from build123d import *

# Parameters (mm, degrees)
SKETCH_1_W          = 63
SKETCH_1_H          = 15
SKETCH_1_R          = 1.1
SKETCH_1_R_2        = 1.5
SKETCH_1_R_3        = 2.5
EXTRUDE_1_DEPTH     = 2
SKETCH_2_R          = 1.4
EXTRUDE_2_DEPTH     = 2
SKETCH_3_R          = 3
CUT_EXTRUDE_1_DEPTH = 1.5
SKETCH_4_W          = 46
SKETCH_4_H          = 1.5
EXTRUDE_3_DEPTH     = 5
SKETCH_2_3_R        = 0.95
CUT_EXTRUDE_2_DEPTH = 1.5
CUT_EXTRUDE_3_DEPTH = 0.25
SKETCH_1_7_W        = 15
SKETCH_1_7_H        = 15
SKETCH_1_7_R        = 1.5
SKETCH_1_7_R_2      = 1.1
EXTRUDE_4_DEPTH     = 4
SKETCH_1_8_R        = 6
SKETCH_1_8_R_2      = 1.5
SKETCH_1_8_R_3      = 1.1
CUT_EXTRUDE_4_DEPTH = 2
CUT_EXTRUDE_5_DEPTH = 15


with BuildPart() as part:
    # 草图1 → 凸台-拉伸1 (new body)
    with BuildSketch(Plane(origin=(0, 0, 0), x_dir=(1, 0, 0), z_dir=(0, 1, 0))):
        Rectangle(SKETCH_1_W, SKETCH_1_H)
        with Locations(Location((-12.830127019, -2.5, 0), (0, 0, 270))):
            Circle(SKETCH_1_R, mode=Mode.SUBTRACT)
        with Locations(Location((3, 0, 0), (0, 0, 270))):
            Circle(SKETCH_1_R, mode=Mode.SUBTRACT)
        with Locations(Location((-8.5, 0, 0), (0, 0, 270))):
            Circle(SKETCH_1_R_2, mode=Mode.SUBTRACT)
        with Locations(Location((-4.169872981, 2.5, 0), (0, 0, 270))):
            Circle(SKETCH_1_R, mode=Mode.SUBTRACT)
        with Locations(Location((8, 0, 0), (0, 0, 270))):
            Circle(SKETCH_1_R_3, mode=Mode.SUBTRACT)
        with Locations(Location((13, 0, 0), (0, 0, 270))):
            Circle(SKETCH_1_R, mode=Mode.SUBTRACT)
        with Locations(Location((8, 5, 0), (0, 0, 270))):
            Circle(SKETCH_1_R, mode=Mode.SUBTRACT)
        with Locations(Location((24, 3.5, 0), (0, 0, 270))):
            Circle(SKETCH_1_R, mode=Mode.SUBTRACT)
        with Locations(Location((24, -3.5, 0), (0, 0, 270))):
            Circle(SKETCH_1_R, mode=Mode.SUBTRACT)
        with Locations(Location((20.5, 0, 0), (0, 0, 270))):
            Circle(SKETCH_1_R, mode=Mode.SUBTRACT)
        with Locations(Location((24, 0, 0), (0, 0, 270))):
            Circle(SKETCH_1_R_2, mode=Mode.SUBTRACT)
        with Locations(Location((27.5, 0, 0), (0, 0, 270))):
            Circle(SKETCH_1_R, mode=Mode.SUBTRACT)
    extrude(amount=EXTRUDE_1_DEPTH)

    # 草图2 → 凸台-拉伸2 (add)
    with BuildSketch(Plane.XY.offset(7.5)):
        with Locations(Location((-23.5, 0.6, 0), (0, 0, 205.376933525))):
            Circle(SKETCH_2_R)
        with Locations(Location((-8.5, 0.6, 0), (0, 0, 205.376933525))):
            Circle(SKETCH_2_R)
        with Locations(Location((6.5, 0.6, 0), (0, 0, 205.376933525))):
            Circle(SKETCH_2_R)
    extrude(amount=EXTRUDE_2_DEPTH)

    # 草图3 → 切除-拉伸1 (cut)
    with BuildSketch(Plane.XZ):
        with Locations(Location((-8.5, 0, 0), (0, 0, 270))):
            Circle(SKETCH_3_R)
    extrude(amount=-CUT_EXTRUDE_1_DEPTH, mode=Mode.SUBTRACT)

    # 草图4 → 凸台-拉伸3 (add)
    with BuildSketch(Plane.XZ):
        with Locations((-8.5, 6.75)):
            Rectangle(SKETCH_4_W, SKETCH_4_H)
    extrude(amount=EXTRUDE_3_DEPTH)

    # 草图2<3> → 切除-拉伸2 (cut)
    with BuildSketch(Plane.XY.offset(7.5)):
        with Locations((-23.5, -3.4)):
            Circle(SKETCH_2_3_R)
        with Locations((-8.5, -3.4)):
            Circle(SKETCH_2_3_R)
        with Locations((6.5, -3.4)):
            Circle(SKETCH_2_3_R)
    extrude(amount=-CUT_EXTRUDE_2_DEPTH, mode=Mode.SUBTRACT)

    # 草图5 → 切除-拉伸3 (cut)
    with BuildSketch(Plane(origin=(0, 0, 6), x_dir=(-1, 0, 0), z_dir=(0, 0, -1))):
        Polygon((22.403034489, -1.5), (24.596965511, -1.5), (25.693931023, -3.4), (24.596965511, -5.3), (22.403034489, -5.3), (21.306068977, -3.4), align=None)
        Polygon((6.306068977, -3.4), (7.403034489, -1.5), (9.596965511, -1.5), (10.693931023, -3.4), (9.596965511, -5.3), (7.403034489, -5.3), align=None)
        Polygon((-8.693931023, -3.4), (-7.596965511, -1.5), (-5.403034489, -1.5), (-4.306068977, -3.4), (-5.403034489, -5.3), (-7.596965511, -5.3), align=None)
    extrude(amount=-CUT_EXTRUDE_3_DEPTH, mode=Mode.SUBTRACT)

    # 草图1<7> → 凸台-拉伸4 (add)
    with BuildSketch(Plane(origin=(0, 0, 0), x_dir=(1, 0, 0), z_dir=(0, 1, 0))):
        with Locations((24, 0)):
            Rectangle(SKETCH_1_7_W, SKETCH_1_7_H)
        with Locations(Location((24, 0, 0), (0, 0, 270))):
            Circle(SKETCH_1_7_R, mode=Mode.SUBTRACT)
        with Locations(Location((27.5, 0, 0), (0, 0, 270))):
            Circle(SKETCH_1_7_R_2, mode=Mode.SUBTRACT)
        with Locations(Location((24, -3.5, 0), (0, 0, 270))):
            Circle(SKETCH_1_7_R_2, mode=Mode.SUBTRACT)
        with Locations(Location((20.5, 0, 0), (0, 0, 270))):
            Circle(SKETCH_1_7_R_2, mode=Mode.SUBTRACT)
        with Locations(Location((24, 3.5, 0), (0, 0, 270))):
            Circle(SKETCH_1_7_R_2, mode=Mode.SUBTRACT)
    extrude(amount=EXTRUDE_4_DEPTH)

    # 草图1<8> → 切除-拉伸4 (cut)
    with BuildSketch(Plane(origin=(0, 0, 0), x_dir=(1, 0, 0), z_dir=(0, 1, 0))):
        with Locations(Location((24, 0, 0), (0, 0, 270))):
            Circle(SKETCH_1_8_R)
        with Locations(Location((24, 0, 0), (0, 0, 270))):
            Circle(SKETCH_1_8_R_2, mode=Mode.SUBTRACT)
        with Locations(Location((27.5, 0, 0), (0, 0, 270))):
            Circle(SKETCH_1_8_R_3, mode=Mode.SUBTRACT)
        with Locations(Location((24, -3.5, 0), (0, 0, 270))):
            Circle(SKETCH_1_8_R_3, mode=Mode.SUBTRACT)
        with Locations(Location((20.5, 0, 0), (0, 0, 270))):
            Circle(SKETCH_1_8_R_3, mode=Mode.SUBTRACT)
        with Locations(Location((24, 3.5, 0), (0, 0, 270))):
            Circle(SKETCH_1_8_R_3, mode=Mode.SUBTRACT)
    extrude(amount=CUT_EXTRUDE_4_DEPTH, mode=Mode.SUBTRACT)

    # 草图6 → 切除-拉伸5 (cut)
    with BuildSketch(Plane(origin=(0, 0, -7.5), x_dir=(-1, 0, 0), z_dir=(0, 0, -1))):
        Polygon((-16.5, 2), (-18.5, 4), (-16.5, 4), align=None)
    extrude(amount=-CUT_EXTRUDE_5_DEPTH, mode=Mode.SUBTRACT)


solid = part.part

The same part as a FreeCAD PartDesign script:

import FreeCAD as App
import Part
import Sketcher
Q = App.Units.Quantity

doc = App.newDocument("Part")
body = doc.addObject("PartDesign::Body", "Body")

# Sketch on XZ plane
sketch1 = body.newObject("Sketcher::SketchObject", "Sketch")
sketch1.AttachmentSupport = (doc.getObject("XZ_Plane"), [""])
sketch1.MapMode = "FlatFace"
sketch1.addGeometry(Part.LineSegment(App.Vector(-31.5, -7.5, 0), App.Vector(-31.5, 7.5, 0)), False)
sketch1.addGeometry(Part.LineSegment(App.Vector(-31.5, 7.5, 0), App.Vector(31.5, 7.5, 0)), False)
sketch1.addGeometry(Part.LineSegment(App.Vector(31.5, 7.5, 0), App.Vector(31.5, -7.5, 0)), False)
sketch1.addGeometry(Part.LineSegment(App.Vector(31.5, -7.5, 0), App.Vector(-31.5, -7.5, 0)), False)
sketch1.addGeometry(Part.Circle(App.Vector(-12.8, 2.5, 0), App.Vector(0, 0, 1), 1.1), False)
sketch1.addGeometry(Part.Circle(App.Vector(-8.5, 0, 0), App.Vector(0, 0, 1), 1.5), False)
sketch1.addGeometry(Part.Circle(App.Vector(3, 0, 0), App.Vector(0, 0, 1), 1.1), False)
sketch1.addGeometry(Part.Circle(App.Vector(24, 3.5, 0), App.Vector(0, 0, 1), 1.1), False)
sketch1.addGeometry(Part.Circle(App.Vector(8, 0, 0), App.Vector(0, 0, 1), 2.5), False)
sketch1.addGeometry(Part.Circle(App.Vector(13, 0, 0), App.Vector(0, 0, 1), 1.1), False)
sketch1.addGeometry(Part.Circle(App.Vector(20.5, 0, 0), App.Vector(0, 0, 1), 1.1), False)
sketch1.addGeometry(Part.Circle(App.Vector(24, 0, 0), App.Vector(0, 0, 1), 1.5), False)
sketch1.addGeometry(Part.Circle(App.Vector(27.5, 0, 0), App.Vector(0, 0, 1), 1.1), False)
sketch1.addGeometry(Part.Circle(App.Vector(-4.2, -2.5, 0), App.Vector(0, 0, 1), 1.1), False)
sketch1.addGeometry(Part.Circle(App.Vector(8, -5, 0), App.Vector(0, 0, 1), 1.1), False)
sketch1.addGeometry(Part.Circle(App.Vector(24, -3.5, 0), App.Vector(0, 0, 1), 1.1), False)
sketch1.addConstraint(Sketcher.Constraint("Coincident", 0, 2, 1, 1))
sketch1.addConstraint(Sketcher.Constraint("Coincident", 1, 2, 2, 1))
sketch1.addConstraint(Sketcher.Constraint("Coincident", 2, 2, 3, 1))
sketch1.addConstraint(Sketcher.Constraint("Coincident", 3, 2, 0, 1))
sketch1.addConstraint(Sketcher.Constraint("Vertical", 0))
sketch1.addConstraint(Sketcher.Constraint("Horizontal", 1))
sketch1.addConstraint(Sketcher.Constraint("Vertical", 2))
sketch1.addConstraint(Sketcher.Constraint("Horizontal", 3))
sketch1.addConstraint(Sketcher.Constraint("Equal", 4, 6))
sketch1.addConstraint(Sketcher.Constraint("Equal", 6, 7))
sketch1.addConstraint(Sketcher.Constraint("Equal", 7, 9))
sketch1.addConstraint(Sketcher.Constraint("Equal", 9, 10))
sketch1.addConstraint(Sketcher.Constraint("Equal", 5, 11))
sketch1.addConstraint(Sketcher.Constraint("Equal", 10, 12))
sketch1.addConstraint(Sketcher.Constraint("Equal", 12, 13))
sketch1.addConstraint(Sketcher.Constraint("Equal", 13, 14))
sketch1.addConstraint(Sketcher.Constraint("Equal", 14, 15))
sketch1.addConstraint(Sketcher.Constraint("Symmetric", 0, 2, 2, 2, -1, 1))
sketch1.addConstraint(Sketcher.Constraint("Symmetric", 7, 3, 15, 3, -1))
sketch1.addConstraint(Sketcher.Constraint("PointOnObject", 5, 3, -1))
sketch1.addConstraint(Sketcher.Constraint("PointOnObject", 6, 3, -1))
sketch1.addConstraint(Sketcher.Constraint("PointOnObject", 8, 3, -1))
sketch1.addConstraint(Sketcher.Constraint("PointOnObject", 9, 3, -1))
sketch1.addConstraint(Sketcher.Constraint("PointOnObject", 10, 3, -1))
sketch1.addConstraint(Sketcher.Constraint("PointOnObject", 11, 3, -1))
sketch1.addConstraint(Sketcher.Constraint("PointOnObject", 12, 3, -1))
sketch1.addConstraint(Sketcher.Constraint("Vertical", 7, 3, 11, 3))
sketch1.addConstraint(Sketcher.Constraint("Vertical", 8, 3, 14, 3))
sketch1.addConstraint(Sketcher.Constraint("Diameter", 5, Q("3 mm")))
sketch1.addConstraint(Sketcher.Constraint("Diameter", 8, Q("5 mm")))
sketch1.addConstraint(Sketcher.Constraint("Diameter", 4, Q("2.2 mm")))
sketch1.addConstraint(Sketcher.Constraint("DistanceX", 1, 1, 1, 2, Q("63 mm")))
sketch1.addConstraint(Sketcher.Constraint("DistanceY", 0, 1, 0, 2, Q("15 mm")))
sketch1.addConstraint(Sketcher.Constraint("DistanceX", -1, 1, 6, 3, Q("3 mm")))
sketch1.addConstraint(Sketcher.Constraint("DistanceX", -1, 1, 7, 3, Q("24 mm")))
sketch1.addConstraint(Sketcher.Constraint("DistanceX", -1, 1, 8, 3, Q("8 mm")))
sketch1.addConstraint(Sketcher.Constraint("DistanceX", -1, 1, 9, 3, Q("13 mm")))
sketch1.addConstraint(Sketcher.Constraint("DistanceY", 14, 3, -1, 1, Q("5 mm")))
sketch1.addConstraint(Sketcher.Constraint("DistanceY", 4, 3, 7, 3, Q("1 mm")))
sketch1.addConstraint(Sketcher.Constraint("DistanceX", 5, 3, 10, 3, Q("29 mm")))
sketch1.addConstraint(Sketcher.Constraint("DistanceX", 10, 3, 12, 3, Q("7 mm")))
sketch1.addConstraint(Sketcher.Constraint("DistanceY", 13, 3, 4, 3, Q("5 mm")))
sketch1.addConstraint(Sketcher.Constraint("DistanceY", 15, 3, 7, 3, Q("7 mm")))
sketch1.addConstraint(Sketcher.Constraint("DistanceX", 0, 2, 5, 3, Q("23 mm")))
sketch1.addConstraint(Sketcher.Constraint("DistanceX", 4, 3, -1, 1, Q("12.830127 mm")))
sketch1.addConstraint(Sketcher.Constraint("DistanceX", 13, 3, -1, 1, Q("4.169873 mm")))
pad1 = body.newObject("PartDesign::Pad", "Pad")
pad1.Profile = sketch1
pad1.Length = 2
pad1.Reversed = True

# Sketch on XY plane
sketch2 = body.newObject("Sketcher::SketchObject", "Sketch001")
sketch2.AttachmentSupport = (doc.getObject("XY_Plane"), [""])
sketch2.MapMode = "FlatFace"
sketch2.AttachmentOffset = App.Placement(App.Vector(0, 0, 7.5), App.Rotation())
sketch2.addGeometry(Part.Circle(App.Vector(-23.5, 0.6, 0), App.Vector(0, 0, 1), 1.4), False)
sketch2.addGeometry(Part.Circle(App.Vector(-8.5, 0.6, 0), App.Vector(0, 0, 1), 1.4), False)
sketch2.addGeometry(Part.Circle(App.Vector(6.5, 0.6, 0), App.Vector(0, 0, 1), 1.4), False)
sketch2.addConstraint(Sketcher.Constraint("Equal", 0, 1))
sketch2.addConstraint(Sketcher.Constraint("Equal", 1, 2))
sketch2.addConstraint(Sketcher.Constraint("Horizontal", 0, 3, 1, 3))
sketch2.addConstraint(Sketcher.Constraint("Horizontal", 1, 3, 2, 3))
sketch2.addConstraint(Sketcher.Constraint("Diameter", 0, Q("2.8 mm")))
sketch2.addConstraint(Sketcher.Constraint("DistanceX", 0, 3, 1, 3, Q("15 mm")))
sketch2.addConstraint(Sketcher.Constraint("DistanceX", 1, 3, 2, 3, Q("15 mm")))
sketch2.addConstraint(Sketcher.Constraint("DistanceX", 0, 3, -1, 1, Q("23.5 mm")))
sketch2.addConstraint(Sketcher.Constraint("DistanceY", -1, 1, 0, 3, Q("0.6 mm")))
pad2 = body.newObject("PartDesign::Pad", "Pad001")
pad2.Profile = sketch2
pad2.Length = 2

# Sketch on XZ plane
sketch3 = body.newObject("Sketcher::SketchObject", "Sketch002")
sketch3.AttachmentSupport = (doc.getObject("XZ_Plane"), [""])
sketch3.MapMode = "FlatFace"
sketch3.addGeometry(Part.Circle(App.Vector(-8.5, 0, 0), App.Vector(0, 0, 1), 3), False)
sketch3.addConstraint(Sketcher.Constraint("PointOnObject", 0, 3, -1))
sketch3.addConstraint(Sketcher.Constraint("Diameter", 0, Q("6 mm")))
sketch3.addConstraint(Sketcher.Constraint("DistanceX", 0, 3, -1, 1, Q("8.5 mm")))
pocket1 = body.newObject("PartDesign::Pocket", "Pocket")
pocket1.Profile = sketch3
pocket1.Length = 1.5

# Sketch on XZ plane
sketch4 = body.newObject("Sketcher::SketchObject", "Sketch003")
sketch4.AttachmentSupport = (doc.getObject("XZ_Plane"), [""])
sketch4.MapMode = "FlatFace"
sketch4.addGeometry(Part.LineSegment(App.Vector(-31.5, 7.5, 0), App.Vector(-31.5, 6, 0)), False)
sketch4.addGeometry(Part.LineSegment(App.Vector(-31.5, 6, 0), App.Vector(14.5, 6, 0)), False)
sketch4.addGeometry(Part.LineSegment(App.Vector(14.5, 6, 0), App.Vector(14.5, 7.5, 0)), False)
sketch4.addGeometry(Part.LineSegment(App.Vector(14.5, 7.5, 0), App.Vector(-31.5, 7.5, 0)), False)
sketch4.addConstraint(Sketcher.Constraint("Coincident", 0, 2, 1, 1))
sketch4.addConstraint(Sketcher.Constraint("Coincident", 1, 2, 2, 1))
sketch4.addConstraint(Sketcher.Constraint("Coincident", 2, 2, 3, 1))
sketch4.addConstraint(Sketcher.Constraint("Coincident", 3, 2, 0, 1))
sketch4.addConstraint(Sketcher.Constraint("Vertical", 0))
sketch4.addConstraint(Sketcher.Constraint("Horizontal", 1))
sketch4.addConstraint(Sketcher.Constraint("Vertical", 2))
sketch4.addConstraint(Sketcher.Constraint("Horizontal", 3))
sketch4.addConstraint(Sketcher.Constraint("DistanceX", 1, 1, 1, 2, Q("46 mm")))
sketch4.addConstraint(Sketcher.Constraint("DistanceY", 0, 2, 0, 1, Q("1.5 mm")))
sketch4.addConstraint(Sketcher.Constraint("DistanceY", -1, 1, 0, 2, Q("6 mm")))
sketch4.addConstraint(Sketcher.Constraint("DistanceX", 0, 2, -1, 1, Q("31.5 mm")))
pad3 = body.newObject("PartDesign::Pad", "Pad002")
pad3.Profile = sketch4
pad3.Length = 5

# Sketch on XY plane
sketch5 = body.newObject("Sketcher::SketchObject", "Sketch004")
sketch5.AttachmentSupport = (doc.getObject("XY_Plane"), [""])
sketch5.MapMode = "FlatFace"
sketch5.AttachmentOffset = App.Placement(App.Vector(0, 0, 7.5), App.Rotation())
sketch5.addGeometry(Part.Circle(App.Vector(-23.5, -3.4, 0), App.Vector(0, 0, 1), 0.9), False)
sketch5.addGeometry(Part.Circle(App.Vector(-8.5, -3.4, 0), App.Vector(0, 0, 1), 0.9), False)
sketch5.addGeometry(Part.Circle(App.Vector(6.5, -3.4, 0), App.Vector(0, 0, 1), 0.9), False)
sketch5.addConstraint(Sketcher.Constraint("Equal", 0, 1))
sketch5.addConstraint(Sketcher.Constraint("Equal", 1, 2))
sketch5.addConstraint(Sketcher.Constraint("Horizontal", 0, 3, 1, 3))
sketch5.addConstraint(Sketcher.Constraint("Horizontal", 1, 3, 2, 3))
sketch5.addConstraint(Sketcher.Constraint("Diameter", 0, Q("1.9 mm")))
sketch5.addConstraint(Sketcher.Constraint("DistanceX", 0, 3, 1, 3, Q("15 mm")))
sketch5.addConstraint(Sketcher.Constraint("DistanceX", 1, 3, 2, 3, Q("15 mm")))
sketch5.addConstraint(Sketcher.Constraint("DistanceX", 0, 3, -1, 1, Q("23.5 mm")))
sketch5.addConstraint(Sketcher.Constraint("DistanceY", 0, 3, -1, 1, Q("3.4 mm")))
pocket2 = body.newObject("PartDesign::Pocket", "Pocket001")
pocket2.Profile = sketch5
pocket2.Length = 1.5

# Sketch on XY plane
sketch6 = body.newObject("Sketcher::SketchObject", "Sketch005")
sketch6.AttachmentSupport = (doc.getObject("XY_Plane"), [""])
sketch6.MapMode = "FlatFace"
sketch6.AttachmentOffset = App.Placement(App.Vector(0, 0, 6), App.Rotation())
sketch6.addGeometry(Part.LineSegment(App.Vector(-24.6, -1.5, 0), App.Vector(-22.4, -1.5, 0)), False)
sketch6.addGeometry(Part.LineSegment(App.Vector(-22.4, -1.5, 0), App.Vector(-21.3, -3.4, 0)), False)
sketch6.addGeometry(Part.LineSegment(App.Vector(-21.3, -3.4, 0), App.Vector(-22.4, -5.3, 0)), False)
sketch6.addGeometry(Part.LineSegment(App.Vector(-22.4, -5.3, 0), App.Vector(-24.6, -5.3, 0)), False)
sketch6.addGeometry(Part.LineSegment(App.Vector(-24.6, -5.3, 0), App.Vector(-25.7, -3.4, 0)), False)
sketch6.addGeometry(Part.LineSegment(App.Vector(-25.7, -3.4, 0), App.Vector(-24.6, -1.5, 0)), False)
sketch6.addGeometry(Part.LineSegment(App.Vector(-7.4, -1.5, 0), App.Vector(-6.3, -3.4, 0)), False)
sketch6.addGeometry(Part.LineSegment(App.Vector(-6.3, -3.4, 0), App.Vector(-7.4, -5.3, 0)), False)
sketch6.addGeometry(Part.LineSegment(App.Vector(-7.4, -5.3, 0), App.Vector(-9.6, -5.3, 0)), False)
sketch6.addGeometry(Part.LineSegment(App.Vector(-9.6, -5.3, 0), App.Vector(-10.7, -3.4, 0)), False)
sketch6.addGeometry(Part.LineSegment(App.Vector(-10.7, -3.4, 0), App.Vector(-9.6, -1.5, 0)), False)
sketch6.addGeometry(Part.LineSegment(App.Vector(-9.6, -1.5, 0), App.Vector(-7.4, -1.5, 0)), False)
sketch6.addGeometry(Part.LineSegment(App.Vector(7.6, -1.5, 0), App.Vector(8.7, -3.4, 0)), False)
sketch6.addGeometry(Part.LineSegment(App.Vector(8.7, -3.4, 0), App.Vector(7.6, -5.3, 0)), False)
sketch6.addGeometry(Part.LineSegment(App.Vector(7.6, -5.3, 0), App.Vector(5.4, -5.3, 0)), False)
sketch6.addGeometry(Part.LineSegment(App.Vector(5.4, -5.3, 0), App.Vector(4.3, -3.4, 0)), False)
sketch6.addGeometry(Part.LineSegment(App.Vector(4.3, -3.4, 0), App.Vector(5.4, -1.5, 0)), False)
sketch6.addGeometry(Part.LineSegment(App.Vector(5.4, -1.5, 0), App.Vector(7.6, -1.5, 0)), False)
sketch6.addConstraint(Sketcher.Constraint("Coincident", 0, 2, 1, 1))
sketch6.addConstraint(Sketcher.Constraint("Coincident", 1, 2, 2, 1))
sketch6.addConstraint(Sketcher.Constraint("Coincident", 2, 2, 3, 1))
sketch6.addConstraint(Sketcher.Constraint("Coincident", 3, 2, 4, 1))
sketch6.addConstraint(Sketcher.Constraint("Coincident", 4, 2, 5, 1))
sketch6.addConstraint(Sketcher.Constraint("Coincident", 5, 2, 0, 1))
sketch6.addConstraint(Sketcher.Constraint("Coincident", 6, 2, 7, 1))
sketch6.addConstraint(Sketcher.Constraint("Coincident", 7, 2, 8, 1))
sketch6.addConstraint(Sketcher.Constraint("Coincident", 8, 2, 9, 1))
sketch6.addConstraint(Sketcher.Constraint("Coincident", 9, 2, 10, 1))
sketch6.addConstraint(Sketcher.Constraint("Coincident", 10, 2, 11, 1))
sketch6.addConstraint(Sketcher.Constraint("Coincident", 11, 2, 6, 1))
sketch6.addConstraint(Sketcher.Constraint("Coincident", 12, 2, 13, 1))
sketch6.addConstraint(Sketcher.Constraint("Coincident", 13, 2, 14, 1))
sketch6.addConstraint(Sketcher.Constraint("Coincident", 14, 2, 15, 1))
sketch6.addConstraint(Sketcher.Constraint("Coincident", 15, 2, 16, 1))
sketch6.addConstraint(Sketcher.Constraint("Coincident", 16, 2, 17, 1))
sketch6.addConstraint(Sketcher.Constraint("Coincident", 17, 2, 12, 1))
sketch6.addConstraint(Sketcher.Constraint("Horizontal", 0))
sketch6.addConstraint(Sketcher.Constraint("Horizontal", 3))
sketch6.addConstraint(Sketcher.Constraint("Horizontal", 8))
sketch6.addConstraint(Sketcher.Constraint("Horizontal", 11))
sketch6.addConstraint(Sketcher.Constraint("Horizontal", 14))
sketch6.addConstraint(Sketcher.Constraint("Horizontal", 17))
sketch6.addConstraint(Sketcher.Constraint("Parallel", 1, 4))
sketch6.addConstraint(Sketcher.Constraint("Parallel", 2, 5))
sketch6.addConstraint(Sketcher.Constraint("Parallel", 4, 6))
sketch6.addConstraint(Sketcher.Constraint("Parallel", 5, 7))
sketch6.addConstraint(Sketcher.Constraint("Parallel", 6, 9))
sketch6.addConstraint(Sketcher.Constraint("Parallel", 7, 10))
sketch6.addConstraint(Sketcher.Constraint("Parallel", 9, 12))
sketch6.addConstraint(Sketcher.Constraint("Parallel", 10, 13))
sketch6.addConstraint(Sketcher.Constraint("Parallel", 12, 15))
sketch6.addConstraint(Sketcher.Constraint("Parallel", 13, 16))
sketch6.addConstraint(Sketcher.Constraint("Horizontal", 1, 2, 4, 2))
sketch6.addConstraint(Sketcher.Constraint("Horizontal", 4, 2, 6, 2))
sketch6.addConstraint(Sketcher.Constraint("Horizontal", 3, 2, 7, 2))
sketch6.addConstraint(Sketcher.Constraint("Horizontal", 6, 2, 9, 2))
sketch6.addConstraint(Sketcher.Constraint("Horizontal", 5, 2, 10, 2))
sketch6.addConstraint(Sketcher.Constraint("Horizontal", 9, 2, 12, 2))
sketch6.addConstraint(Sketcher.Constraint("Horizontal", 8, 2, 13, 2))
sketch6.addConstraint(Sketcher.Constraint("Horizontal", 12, 2, 15, 2))
sketch6.addConstraint(Sketcher.Constraint("Horizontal", 11, 2, 16, 2))
sketch6.addConstraint(Sketcher.Constraint("Vertical", 0, 2, 2, 2))
sketch6.addConstraint(Sketcher.Constraint("Vertical", 3, 2, 5, 2))
sketch6.addConstraint(Sketcher.Constraint("Equal", 3, 8))
sketch6.addConstraint(Sketcher.Constraint("Equal", 11, 14))
sketch6.addConstraint(Sketcher.Constraint("Angle", 1, Q("-60 deg")))
sketch6.addConstraint(Sketcher.Constraint("DistanceX", 1, 2, 6, 2, Q("15 mm")))
sketch6.addConstraint(Sketcher.Constraint("DistanceX", 6, 2, 12, 2, Q("15 mm")))
sketch6.addConstraint(Sketcher.Constraint("DistanceY", 0, 2, -1, 1, Q("1.5 mm")))
sketch6.addConstraint(Sketcher.Constraint("DistanceY", 1, 2, -1, 1, Q("3.4 mm")))
sketch6.addConstraint(Sketcher.Constraint("DistanceX", 0, 1, 0, 2, Q("2.193931 mm")))
sketch6.addConstraint(Sketcher.Constraint("DistanceX", 1, 2, -1, 1, Q("21.306069 mm")))
pocket3 = body.newObject("PartDesign::Pocket", "Pocket002")
pocket3.Profile = sketch6
pocket3.Length = 0.25
pocket3.Reversed = True

# Sketch on XZ plane
sketch7 = body.newObject("Sketcher::SketchObject", "Sketch006")
sketch7.AttachmentSupport = (doc.getObject("XZ_Plane"), [""])
sketch7.MapMode = "FlatFace"
sketch7.addGeometry(Part.LineSegment(App.Vector(16.5, -7.5, 0), App.Vector(16.5, 7.5, 0)), False)
sketch7.addGeometry(Part.LineSegment(App.Vector(16.5, 7.5, 0), App.Vector(31.5, 7.5, 0)), False)
sketch7.addGeometry(Part.LineSegment(App.Vector(31.5, 7.5, 0), App.Vector(31.5, -7.5, 0)), False)
sketch7.addGeometry(Part.LineSegment(App.Vector(31.5, -7.5, 0), App.Vector(16.5, -7.5, 0)), False)
sketch7.addGeometry(Part.Circle(App.Vector(24, 3.5, 0), App.Vector(0, 0, 1), 1.1), False)
sketch7.addGeometry(Part.Circle(App.Vector(20.5, 0, 0), App.Vector(0, 0, 1), 1.1), False)
sketch7.addGeometry(Part.Circle(App.Vector(24, 0, 0), App.Vector(0, 0, 1), 1.5), False)
sketch7.addGeometry(Part.Circle(App.Vector(27.5, 0, 0), App.Vector(0, 0, 1), 1.1), False)
sketch7.addGeometry(Part.Circle(App.Vector(24, -3.5, 0), App.Vector(0, 0, 1), 1.1), False)
sketch7.addConstraint(Sketcher.Constraint("Coincident", 0, 2, 1, 1))
sketch7.addConstraint(Sketcher.Constraint("Coincident", 1, 2, 2, 1))
sketch7.addConstraint(Sketcher.Constraint("Coincident", 2, 2, 3, 1))
sketch7.addConstraint(Sketcher.Constraint("Coincident", 3, 2, 0, 1))
sketch7.addConstraint(Sketcher.Constraint("Vertical", 0))
sketch7.addConstraint(Sketcher.Constraint("Horizontal", 1))
sketch7.addConstraint(Sketcher.Constraint("Vertical", 2))
sketch7.addConstraint(Sketcher.Constraint("Horizontal", 3))
sketch7.addConstraint(Sketcher.Constraint("Equal", 4, 5))
sketch7.addConstraint(Sketcher.Constraint("Equal", 5, 7))
sketch7.addConstraint(Sketcher.Constraint("Equal", 7, 8))
sketch7.addConstraint(Sketcher.Constraint("Symmetric", 4, 3, 8, 3, -1))
sketch7.addConstraint(Sketcher.Constraint("PointOnObject", 5, 3, -1))
sketch7.addConstraint(Sketcher.Constraint("PointOnObject", 6, 3, -1))
sketch7.addConstraint(Sketcher.Constraint("PointOnObject", 7, 3, -1))
sketch7.addConstraint(Sketcher.Constraint("Vertical", 4, 3, 6, 3))
sketch7.addConstraint(Sketcher.Constraint("Equal", 3, 0))
sketch7.addConstraint(Sketcher.Constraint("Diameter", 6, Q("3 mm")))
sketch7.addConstraint(Sketcher.Constraint("Diameter", 4, Q("2.2 mm")))
sketch7.addConstraint(Sketcher.Constraint("DistanceX", 1, 1, 1, 2, Q("15 mm")))
sketch7.addConstraint(Sketcher.Constraint("DistanceX", -1, 1, 4, 3, Q("24 mm")))
sketch7.addConstraint(Sketcher.Constraint("DistanceX", 5, 3, 7, 3, Q("7 mm")))
sketch7.addConstraint(Sketcher.Constraint("DistanceY", 8, 3, 4, 3, Q("7 mm")))
sketch7.addConstraint(Sketcher.Constraint("DistanceY", 4, 3, 0, 2, Q("4 mm")))
sketch7.addConstraint(Sketcher.Constraint("DistanceX", 0, 2, 5, 3, Q("4 mm")))
sketch7.addConstraint(Sketcher.Constraint("DistanceX", -1, 1, 5, 3, Q("20.5 mm")))
pad4 = body.newObject("PartDesign::Pad", "Pad003")
pad4.Profile = sketch7
pad4.Length = 4
pad4.Reversed = True

# Sketch on XZ plane
sketch8 = body.newObject("Sketcher::SketchObject", "Sketch007")
sketch8.AttachmentSupport = (doc.getObject("XZ_Plane"), [""])
sketch8.MapMode = "FlatFace"
sketch8.addGeometry(Part.Circle(App.Vector(24, 0, 0), App.Vector(0, 0, 1), 6), False)
sketch8.addGeometry(Part.Circle(App.Vector(20.5, 0, 0), App.Vector(0, 0, 1), 1.1), False)
sketch8.addGeometry(Part.Circle(App.Vector(24, -3.5, 0), App.Vector(0, 0, 1), 1.1), False)
sketch8.addGeometry(Part.Circle(App.Vector(24, 0, 0), App.Vector(0, 0, 1), 1.5), False)
sketch8.addGeometry(Part.Circle(App.Vector(24, 3.5, 0), App.Vector(0, 0, 1), 1.1), False)
sketch8.addGeometry(Part.Circle(App.Vector(27.5, 0, 0), App.Vector(0, 0, 1), 1.1), False)
sketch8.addConstraint(Sketcher.Constraint("Coincident", 3, 3, 0, 3))
sketch8.addConstraint(Sketcher.Constraint("Equal", 1, 2))
sketch8.addConstraint(Sketcher.Constraint("Equal", 2, 4))
sketch8.addConstraint(Sketcher.Constraint("Equal", 4, 5))
sketch8.addConstraint(Sketcher.Constraint("Symmetric", 2, 3, 4, 3, -1))
sketch8.addConstraint(Sketcher.Constraint("PointOnObject", 0, 3, -1))
sketch8.addConstraint(Sketcher.Constraint("PointOnObject", 1, 3, -1))
sketch8.addConstraint(Sketcher.Constraint("PointOnObject", 5, 3, -1))
sketch8.addConstraint(Sketcher.Constraint("Vertical", 0, 3, 2, 3))
sketch8.addConstraint(Sketcher.Constraint("Diameter", 0, Q("12 mm")))
sketch8.addConstraint(Sketcher.Constraint("Diameter", 3, Q("3 mm")))
sketch8.addConstraint(Sketcher.Constraint("Diameter", 1, Q("2.2 mm")))
sketch8.addConstraint(Sketcher.Constraint("DistanceX", -1, 1, 0, 3, Q("24 mm")))
sketch8.addConstraint(Sketcher.Constraint("DistanceY", 2, 3, 4, 3, Q("7 mm")))
sketch8.addConstraint(Sketcher.Constraint("DistanceX", 1, 3, 5, 3, Q("7 mm")))
sketch8.addConstraint(Sketcher.Constraint("DistanceX", -1, 1, 1, 3, Q("20.5 mm")))
pocket4 = body.newObject("PartDesign::Pocket", "Pocket003")
pocket4.Profile = sketch8
pocket4.Length = 2

# Sketch on XY plane
sketch9 = body.newObject("Sketcher::SketchObject", "Sketch008")
sketch9.AttachmentSupport = (doc.getObject("XY_Plane"), [""])
sketch9.MapMode = "FlatFace"
sketch9.AttachmentOffset = App.Placement(App.Vector(0, 0, -7.5), App.Rotation())
sketch9.addGeometry(Part.LineSegment(App.Vector(18.5, 4, 0), App.Vector(16.5, 2, 0)), False)
sketch9.addGeometry(Part.LineSegment(App.Vector(16.5, 2, 0), App.Vector(16.5, 4, 0)), False)
sketch9.addGeometry(Part.LineSegment(App.Vector(16.5, 4, 0), App.Vector(18.5, 4, 0)), False)
sketch9.addConstraint(Sketcher.Constraint("Coincident", 0, 2, 1, 1))
sketch9.addConstraint(Sketcher.Constraint("Coincident", 1, 2, 2, 1))
sketch9.addConstraint(Sketcher.Constraint("Coincident", 2, 2, 0, 1))
sketch9.addConstraint(Sketcher.Constraint("Vertical", 1))
sketch9.addConstraint(Sketcher.Constraint("Horizontal", 2))
sketch9.addConstraint(Sketcher.Constraint("Equal", 2, 1))
sketch9.addConstraint(Sketcher.Constraint("DistanceX", 2, 1, 2, 2, Q("2 mm")))
sketch9.addConstraint(Sketcher.Constraint("DistanceY", -1, 1, 0, 2, Q("2 mm")))
sketch9.addConstraint(Sketcher.Constraint("DistanceX", -1, 1, 0, 2, Q("16.5 mm")))
pocket5 = body.newObject("PartDesign::Pocket", "Pocket004")
pocket5.Profile = sketch9
pocket5.Length = 15
pocket5.Reversed = True

doc.recompute()
